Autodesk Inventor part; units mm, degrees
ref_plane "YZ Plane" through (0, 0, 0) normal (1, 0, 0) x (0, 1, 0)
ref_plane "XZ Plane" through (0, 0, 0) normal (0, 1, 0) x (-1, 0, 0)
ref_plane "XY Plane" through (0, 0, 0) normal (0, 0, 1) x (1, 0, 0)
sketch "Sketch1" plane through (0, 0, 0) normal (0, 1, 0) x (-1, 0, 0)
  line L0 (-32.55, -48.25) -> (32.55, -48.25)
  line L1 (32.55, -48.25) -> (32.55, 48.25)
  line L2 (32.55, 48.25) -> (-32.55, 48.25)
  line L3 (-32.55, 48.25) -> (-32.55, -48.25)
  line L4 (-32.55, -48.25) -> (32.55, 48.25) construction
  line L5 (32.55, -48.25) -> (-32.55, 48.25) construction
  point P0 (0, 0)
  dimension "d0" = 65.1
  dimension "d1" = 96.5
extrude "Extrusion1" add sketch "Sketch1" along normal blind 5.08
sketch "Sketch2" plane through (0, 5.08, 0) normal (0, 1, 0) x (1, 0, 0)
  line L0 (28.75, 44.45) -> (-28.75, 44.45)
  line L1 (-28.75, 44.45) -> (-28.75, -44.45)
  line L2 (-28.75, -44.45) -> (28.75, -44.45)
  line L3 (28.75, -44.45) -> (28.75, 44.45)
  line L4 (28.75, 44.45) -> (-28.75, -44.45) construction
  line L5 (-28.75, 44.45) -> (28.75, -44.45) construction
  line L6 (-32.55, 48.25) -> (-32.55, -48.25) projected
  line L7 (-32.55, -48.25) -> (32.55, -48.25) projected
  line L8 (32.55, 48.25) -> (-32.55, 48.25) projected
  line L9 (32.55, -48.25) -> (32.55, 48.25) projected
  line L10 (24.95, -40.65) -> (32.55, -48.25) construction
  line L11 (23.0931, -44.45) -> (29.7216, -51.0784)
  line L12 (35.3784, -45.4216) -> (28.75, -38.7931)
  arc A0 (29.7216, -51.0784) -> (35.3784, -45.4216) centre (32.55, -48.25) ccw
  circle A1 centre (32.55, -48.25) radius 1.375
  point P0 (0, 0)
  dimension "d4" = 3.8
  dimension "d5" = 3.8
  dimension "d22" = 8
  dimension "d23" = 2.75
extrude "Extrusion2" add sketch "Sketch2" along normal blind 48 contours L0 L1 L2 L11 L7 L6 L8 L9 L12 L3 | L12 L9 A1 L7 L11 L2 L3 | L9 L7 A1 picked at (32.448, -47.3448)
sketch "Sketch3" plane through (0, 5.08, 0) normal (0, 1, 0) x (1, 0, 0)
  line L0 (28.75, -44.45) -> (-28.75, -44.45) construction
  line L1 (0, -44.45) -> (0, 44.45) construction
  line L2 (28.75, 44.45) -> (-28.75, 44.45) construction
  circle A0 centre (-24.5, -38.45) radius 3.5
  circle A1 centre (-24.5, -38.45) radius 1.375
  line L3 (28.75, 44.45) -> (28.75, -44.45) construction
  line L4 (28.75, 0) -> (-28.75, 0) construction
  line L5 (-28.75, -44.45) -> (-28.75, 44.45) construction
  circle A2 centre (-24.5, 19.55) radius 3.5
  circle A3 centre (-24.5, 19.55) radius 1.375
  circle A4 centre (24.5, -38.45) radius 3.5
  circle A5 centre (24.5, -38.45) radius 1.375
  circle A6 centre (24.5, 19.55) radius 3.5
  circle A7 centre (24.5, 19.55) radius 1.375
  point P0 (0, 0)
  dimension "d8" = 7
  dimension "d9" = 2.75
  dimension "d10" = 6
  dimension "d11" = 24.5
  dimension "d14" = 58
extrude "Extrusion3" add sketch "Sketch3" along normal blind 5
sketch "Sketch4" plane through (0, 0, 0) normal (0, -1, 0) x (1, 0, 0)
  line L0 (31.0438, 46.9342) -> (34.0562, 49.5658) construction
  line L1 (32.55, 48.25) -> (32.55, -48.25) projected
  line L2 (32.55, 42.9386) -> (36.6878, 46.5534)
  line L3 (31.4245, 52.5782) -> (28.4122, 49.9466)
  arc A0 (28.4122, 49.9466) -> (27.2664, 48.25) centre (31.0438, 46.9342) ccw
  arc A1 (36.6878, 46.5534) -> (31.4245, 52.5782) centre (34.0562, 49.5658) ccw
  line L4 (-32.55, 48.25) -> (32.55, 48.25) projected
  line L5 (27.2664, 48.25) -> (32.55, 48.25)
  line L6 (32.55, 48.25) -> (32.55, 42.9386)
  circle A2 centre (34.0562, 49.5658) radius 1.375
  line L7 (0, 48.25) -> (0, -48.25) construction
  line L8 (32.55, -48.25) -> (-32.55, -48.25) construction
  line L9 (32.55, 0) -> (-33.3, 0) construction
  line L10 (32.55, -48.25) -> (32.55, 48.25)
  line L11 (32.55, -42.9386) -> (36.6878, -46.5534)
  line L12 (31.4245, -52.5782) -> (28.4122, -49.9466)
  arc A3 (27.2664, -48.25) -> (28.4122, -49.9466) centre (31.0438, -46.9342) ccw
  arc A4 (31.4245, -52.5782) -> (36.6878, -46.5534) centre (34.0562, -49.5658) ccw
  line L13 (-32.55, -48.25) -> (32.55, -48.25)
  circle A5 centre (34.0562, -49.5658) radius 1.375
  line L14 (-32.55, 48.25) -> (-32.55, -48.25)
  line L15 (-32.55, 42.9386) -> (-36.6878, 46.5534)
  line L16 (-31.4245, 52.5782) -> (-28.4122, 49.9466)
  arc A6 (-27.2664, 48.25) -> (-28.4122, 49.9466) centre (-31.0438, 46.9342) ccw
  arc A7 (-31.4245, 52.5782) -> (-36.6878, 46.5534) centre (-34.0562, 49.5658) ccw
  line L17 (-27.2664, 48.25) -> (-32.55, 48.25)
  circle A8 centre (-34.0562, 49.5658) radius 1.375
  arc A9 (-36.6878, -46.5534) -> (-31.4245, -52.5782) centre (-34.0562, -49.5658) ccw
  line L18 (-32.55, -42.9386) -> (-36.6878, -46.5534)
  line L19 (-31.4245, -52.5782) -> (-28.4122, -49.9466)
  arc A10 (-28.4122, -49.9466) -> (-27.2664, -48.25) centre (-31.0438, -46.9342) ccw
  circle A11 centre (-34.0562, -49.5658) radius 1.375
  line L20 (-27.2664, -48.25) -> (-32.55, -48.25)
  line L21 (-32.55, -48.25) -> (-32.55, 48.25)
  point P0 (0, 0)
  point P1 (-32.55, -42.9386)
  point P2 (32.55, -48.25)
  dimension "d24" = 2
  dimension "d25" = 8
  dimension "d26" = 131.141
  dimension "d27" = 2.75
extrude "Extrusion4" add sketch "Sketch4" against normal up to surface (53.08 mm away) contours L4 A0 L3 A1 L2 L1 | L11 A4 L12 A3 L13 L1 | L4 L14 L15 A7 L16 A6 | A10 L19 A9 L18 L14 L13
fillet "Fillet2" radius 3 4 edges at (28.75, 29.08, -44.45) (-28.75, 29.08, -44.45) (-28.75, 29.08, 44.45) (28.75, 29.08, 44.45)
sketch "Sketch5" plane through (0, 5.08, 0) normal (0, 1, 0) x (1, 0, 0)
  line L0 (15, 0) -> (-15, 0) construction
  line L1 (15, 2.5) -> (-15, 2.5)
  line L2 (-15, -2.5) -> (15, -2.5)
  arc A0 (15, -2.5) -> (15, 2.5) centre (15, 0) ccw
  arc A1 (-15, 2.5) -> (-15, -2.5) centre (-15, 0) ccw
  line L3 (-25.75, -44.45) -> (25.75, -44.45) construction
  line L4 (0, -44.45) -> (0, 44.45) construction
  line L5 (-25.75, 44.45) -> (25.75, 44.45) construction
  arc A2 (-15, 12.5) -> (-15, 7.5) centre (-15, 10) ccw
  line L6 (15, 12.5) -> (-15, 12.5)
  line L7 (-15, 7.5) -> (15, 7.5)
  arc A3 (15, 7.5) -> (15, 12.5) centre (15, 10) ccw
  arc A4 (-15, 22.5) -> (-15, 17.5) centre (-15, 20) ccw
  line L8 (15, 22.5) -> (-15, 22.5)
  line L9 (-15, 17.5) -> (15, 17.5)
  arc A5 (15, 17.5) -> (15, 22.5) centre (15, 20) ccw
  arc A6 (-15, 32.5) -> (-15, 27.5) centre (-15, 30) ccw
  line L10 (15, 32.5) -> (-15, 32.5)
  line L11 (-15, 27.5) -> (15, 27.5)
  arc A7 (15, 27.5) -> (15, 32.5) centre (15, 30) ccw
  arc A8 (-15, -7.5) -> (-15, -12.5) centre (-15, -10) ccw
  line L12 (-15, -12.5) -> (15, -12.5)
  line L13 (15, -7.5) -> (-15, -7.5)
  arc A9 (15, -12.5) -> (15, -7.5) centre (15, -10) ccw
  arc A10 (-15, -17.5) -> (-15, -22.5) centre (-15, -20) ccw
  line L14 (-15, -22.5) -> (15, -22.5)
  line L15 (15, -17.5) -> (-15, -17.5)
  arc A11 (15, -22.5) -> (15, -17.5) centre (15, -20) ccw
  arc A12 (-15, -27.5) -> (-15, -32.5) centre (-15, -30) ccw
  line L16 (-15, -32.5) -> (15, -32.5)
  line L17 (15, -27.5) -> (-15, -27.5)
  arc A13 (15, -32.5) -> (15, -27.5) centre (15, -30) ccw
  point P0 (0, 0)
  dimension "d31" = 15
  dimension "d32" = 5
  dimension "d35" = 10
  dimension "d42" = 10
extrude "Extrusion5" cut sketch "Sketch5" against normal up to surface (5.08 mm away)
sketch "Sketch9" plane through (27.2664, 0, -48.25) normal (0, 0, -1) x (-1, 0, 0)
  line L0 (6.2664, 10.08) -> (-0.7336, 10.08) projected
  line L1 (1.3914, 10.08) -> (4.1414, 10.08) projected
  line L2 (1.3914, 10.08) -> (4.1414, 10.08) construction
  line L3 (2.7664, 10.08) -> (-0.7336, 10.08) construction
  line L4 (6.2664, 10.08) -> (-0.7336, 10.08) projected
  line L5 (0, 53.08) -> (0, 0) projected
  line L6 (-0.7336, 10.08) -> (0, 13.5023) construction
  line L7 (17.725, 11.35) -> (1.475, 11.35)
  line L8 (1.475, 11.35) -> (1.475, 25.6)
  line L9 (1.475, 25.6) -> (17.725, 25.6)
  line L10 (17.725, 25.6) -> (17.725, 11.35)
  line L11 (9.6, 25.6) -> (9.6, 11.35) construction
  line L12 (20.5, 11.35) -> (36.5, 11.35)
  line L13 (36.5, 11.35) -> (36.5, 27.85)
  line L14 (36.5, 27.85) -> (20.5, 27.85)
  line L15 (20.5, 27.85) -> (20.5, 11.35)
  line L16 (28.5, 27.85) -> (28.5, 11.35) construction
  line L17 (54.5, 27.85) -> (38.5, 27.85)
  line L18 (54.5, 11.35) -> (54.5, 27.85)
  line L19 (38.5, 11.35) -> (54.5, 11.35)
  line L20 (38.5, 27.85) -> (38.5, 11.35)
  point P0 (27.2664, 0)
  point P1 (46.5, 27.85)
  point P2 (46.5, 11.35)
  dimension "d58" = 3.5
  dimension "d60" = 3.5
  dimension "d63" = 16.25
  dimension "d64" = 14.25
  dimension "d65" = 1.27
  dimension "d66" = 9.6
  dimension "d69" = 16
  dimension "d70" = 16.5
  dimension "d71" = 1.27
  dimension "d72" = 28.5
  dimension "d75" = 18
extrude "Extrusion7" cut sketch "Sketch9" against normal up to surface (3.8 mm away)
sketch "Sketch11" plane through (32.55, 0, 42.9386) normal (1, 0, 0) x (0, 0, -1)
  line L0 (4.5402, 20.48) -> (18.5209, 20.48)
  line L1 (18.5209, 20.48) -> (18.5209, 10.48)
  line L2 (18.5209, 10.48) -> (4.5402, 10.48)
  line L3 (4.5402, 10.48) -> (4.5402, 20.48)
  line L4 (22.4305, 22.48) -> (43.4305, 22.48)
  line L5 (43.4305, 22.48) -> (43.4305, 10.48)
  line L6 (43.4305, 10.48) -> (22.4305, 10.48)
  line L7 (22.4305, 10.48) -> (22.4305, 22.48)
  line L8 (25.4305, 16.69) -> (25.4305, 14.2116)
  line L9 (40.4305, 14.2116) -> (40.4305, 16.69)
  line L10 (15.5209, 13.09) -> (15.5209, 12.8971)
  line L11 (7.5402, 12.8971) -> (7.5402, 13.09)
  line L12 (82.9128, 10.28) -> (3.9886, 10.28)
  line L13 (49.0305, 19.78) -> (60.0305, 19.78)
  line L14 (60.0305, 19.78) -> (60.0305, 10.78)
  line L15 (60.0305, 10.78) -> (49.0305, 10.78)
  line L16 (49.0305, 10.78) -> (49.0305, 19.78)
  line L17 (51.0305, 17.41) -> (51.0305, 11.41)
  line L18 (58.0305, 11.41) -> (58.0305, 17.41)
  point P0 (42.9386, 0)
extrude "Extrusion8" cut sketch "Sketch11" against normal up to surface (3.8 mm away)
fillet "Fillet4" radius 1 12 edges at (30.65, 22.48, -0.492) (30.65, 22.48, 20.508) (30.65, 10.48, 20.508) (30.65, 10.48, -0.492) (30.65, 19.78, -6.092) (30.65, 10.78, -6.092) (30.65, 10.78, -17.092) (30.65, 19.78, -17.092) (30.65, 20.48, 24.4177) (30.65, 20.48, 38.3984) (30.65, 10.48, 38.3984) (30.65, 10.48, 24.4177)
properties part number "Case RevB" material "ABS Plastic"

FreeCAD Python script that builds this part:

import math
import FreeCAD as App
import Part
import Sketcher
Q = App.Units.Quantity


def edges_at(feature, points):
    """Names of the edges that pass closest to the given points."""
    edges = feature.Shape.Edges
    near = lambda p: min(range(len(edges)), key=lambda i: edges[i].distToShape(Part.Vertex(*p))[0])
    return sorted({f"Edge{near(p) + 1}" for p in points})


def add_polygon(sketch, points):
    """Adds a closed chain of lines whose ends are joined by coincident constraints."""
    first, n = sketch.GeometryCount, len(points)
    for a, b in zip(points, points[1:] + points[:1]):
        sketch.addGeometry(Part.LineSegment(App.Vector(*a, 0), App.Vector(*b, 0)), False)
    for i in range(n):
        sketch.addConstraint(Sketcher.Constraint("Coincident", first + i, 2, first + (i + 1) % n, 1))

doc = App.newDocument("Part")
body = doc.addObject("PartDesign::Body", "Body")

sketch1 = doc.addObject("Sketcher::SketchObject", "Sketch")
body.addObject(sketch1)
sketch1.AttachmentSupport = (doc.XZ_Plane, [""])
sketch1.MapMode = "FlatFace"
add_polygon(sketch1, [(32.55, 48.25), (32.55, -48.25), (-32.55, -48.25), (-32.55, 48.25)])
sketch1.addConstraint([
    Sketcher.Constraint("Vertical", 0),
    Sketcher.Constraint("Horizontal", 1),
    Sketcher.Constraint("Vertical", 2),
    Sketcher.Constraint("Horizontal", 3),
    Sketcher.Constraint("Symmetric", 0, 2, 2, 2, -1, 1),
    Sketcher.Constraint("DistanceX", 1, 2, 1, 1, 65.1),
    Sketcher.Constraint("DistanceY", 0, 2, 0, 1, 96.5),
])
pad1 = doc.addObject("PartDesign::Pad", "Pad")
body.addObject(pad1)
pad1.Profile = sketch1
pad1.Length = 5.08
pad1.Reversed = True

sketch2 = doc.addObject("Sketcher::SketchObject", "Sketch001")
body.addObject(sketch2)
sketch2.AttachmentSupport = (doc.XZ_Plane, [""])
sketch2.MapMode = "FlatFace"
sketch2.AttachmentOffset = App.Placement(App.Vector(0, 0, -5.08), App.Rotation())
add_polygon(sketch2, [(-32.55, 48.25), (32.55, 48.25), (32.55, -48.25), (-32.55, -48.25)])
add_polygon(sketch2, [(-28.75, -44.45), (28.75, -44.45), (28.75, 44.45), (-28.75, 44.45)])
sketch2.addConstraint([
    Sketcher.Constraint("Horizontal", 0),
    Sketcher.Constraint("Vertical", 1),
    Sketcher.Constraint("Horizontal", 2),
    Sketcher.Constraint("Vertical", 3),
    Sketcher.Constraint("Horizontal", 4),
    Sketcher.Constraint("Vertical", 5),
    Sketcher.Constraint("Horizontal", 6),
    Sketcher.Constraint("Vertical", 7),
    Sketcher.Constraint("Symmetric", 0, 2, 2, 2, -1, 1),
    Sketcher.Constraint("Symmetric", 4, 2, 6, 2, -1, 1),
    Sketcher.Constraint("DistanceX", 4, 2, 1, 2, 3.8),
    Sketcher.Constraint("DistanceY", 1, 2, 4, 2, 3.8),
    Sketcher.Constraint("DistanceX", 0, 1, 0, 2, 65.1),
    Sketcher.Constraint("DistanceY", 1, 2, 1, 1, 96.5),
])
pad2 = doc.addObject("PartDesign::Pad", "Pad001")
body.addObject(pad2)
pad2.Profile = sketch2
pad2.Length = 48
pad2.Reversed = True

sketch3 = doc.addObject("Sketcher::SketchObject", "Sketch002")
body.addObject(sketch3)
sketch3.AttachmentSupport = (doc.XZ_Plane, [""])
sketch3.MapMode = "FlatFace"
sketch3.AttachmentOffset = App.Placement(App.Vector(0, 0, -5.08), App.Rotation())
sketch3.addGeometry([
    Part.Circle(App.Vector(-24.5, 38.45, 0), App.Vector(0, 0, 1), 3.5),
    Part.Circle(App.Vector(-24.5, 38.45, 0), App.Vector(0, 0, 1), 1.375),
    Part.Circle(App.Vector(-24.5, -19.55, 0), App.Vector(0, 0, 1), 3.5),
    Part.Circle(App.Vector(-24.5, -19.55, 0), App.Vector(0, 0, 1), 1.375),
    Part.Circle(App.Vector(24.5, 38.45, 0), App.Vector(0, 0, 1), 3.5),
    Part.Circle(App.Vector(24.5, 38.45, 0), App.Vector(0, 0, 1), 1.375),
    Part.Circle(App.Vector(24.5, -19.55, 0), App.Vector(0, 0, 1), 3.5),
    Part.Circle(App.Vector(24.5, -19.55, 0), App.Vector(0, 0, 1), 1.375),
], False)
sketch3.addConstraint([
    Sketcher.Constraint("Coincident", 1, 3, 0, 3),
    Sketcher.Constraint("Coincident", 3, 3, 2, 3),
    Sketcher.Constraint("Coincident", 5, 3, 4, 3),
    Sketcher.Constraint("Coincident", 7, 3, 6, 3),
    Sketcher.Constraint("Equal", 0, 2),
    Sketcher.Constraint("Equal", 1, 3),
    Sketcher.Constraint("Equal", 2, 4),
    Sketcher.Constraint("Equal", 3, 5),
    Sketcher.Constraint("Equal", 4, 6),
    Sketcher.Constraint("Equal", 5, 7),
    Sketcher.Constraint("Symmetric", 0, 3, 4, 3, -2),
    Sketcher.Constraint("Symmetric", 2, 3, 6, 3, -2),
    Sketcher.Constraint("Vertical", 1, 3, 2, 3),
    Sketcher.Constraint("Diameter", 0, 7.0),
    Sketcher.Constraint("Diameter", 1, 2.75),
    Sketcher.Constraint("DistanceY", 2, 3, 0, 3, 58.0),
    Sketcher.Constraint("DistanceX", 0, 3, -1, 1, 24.5),
    Sketcher.Constraint("DistanceY", -1, 1, 0, 3, 38.45),
])
pad3 = doc.addObject("PartDesign::Pad", "Pad002")
body.addObject(pad3)
pad3.Profile = sketch3
pad3.Length = 5
pad3.Reversed = True

sketch4 = doc.addObject("Sketcher::SketchObject", "Sketch003")
body.addObject(sketch4)
sketch4.AttachmentSupport = (doc.XZ_Plane, [""])
sketch4.MapMode = "FlatFace"
sketch4.addGeometry([
    Part.LineSegment(App.Vector(27.2664, 48.25, 0), App.Vector(32.55, 48.25, 0)),
    Part.LineSegment(App.Vector(32.55, 48.25, 0), App.Vector(32.55, 42.9386, 0)),
    Part.LineSegment(App.Vector(32.55, 42.9386, 0), App.Vector(36.6878, 46.5534, 0)),
    Part.ArcOfCircle(Part.Circle(App.Vector(34.0562, 49.5658, 0), App.Vector(0, 0, 1), 3.999984), math.radians(-48.859889), math.radians(131.141189)),
    Part.LineSegment(App.Vector(31.4245, 52.5782, 0), App.Vector(28.4122, 49.9466, 0)),
    Part.ArcOfCircle(Part.Circle(App.Vector(31.0438, 46.9342, 0), App.Vector(0, 0, 1), 3.999984), math.radians(131.140111), math.radians(160.794993)),
    Part.Circle(App.Vector(34.0562, 49.5658, 0), App.Vector(0, 0, 1), 1.375),
    Part.LineSegment(App.Vector(36.6878, -46.5534, 0), App.Vector(32.55, -42.9386, 0)),
    Part.LineSegment(App.Vector(32.55, -42.9386, 0), App.Vector(32.55, -48.25, 0)),
    Part.LineSegment(App.Vector(32.55, -48.25, 0), App.Vector(27.2664, -48.25, 0)),
    Part.ArcOfCircle(Part.Circle(App.Vector(31.0438, -46.9342, 0), App.Vector(0, 0, 1), 4.00001), math.radians(-160.794993), math.radians(-131.140111)),
    Part.LineSegment(App.Vector(28.4122, -49.9466, 0), App.Vector(31.4245, -52.5782, 0)),
    Part.ArcOfCircle(Part.Circle(App.Vector(34.0562, -49.5658, 0), App.Vector(0, 0, 1), 4.00005), math.radians(-131.141189), math.radians(48.859889)),
    Part.Circle(App.Vector(34.0562, -49.5658, 0), App.Vector(0, 0, 1), 1.375),
    Part.LineSegment(App.Vector(-32.55, 48.25, 0), App.Vector(-27.2664, 48.25, 0)),
    Part.ArcOfCircle(Part.Circle(App.Vector(-31.0438, 46.9342, 0), App.Vector(0, 0, 1), 4.00001), math.radians(19.205007), math.radians(48.859889)),
    Part.LineSegment(App.Vector(-28.4122, 49.9466, 0), App.Vector(-31.4245, 52.5782, 0)),
    Part.ArcOfCircle(Part.Circle(App.Vector(-34.0562, 49.5658, 0), App.Vector(0, 0, 1), 4.00005), math.radians(48.858811), math.radians(228.859889)),
    Part.LineSegment(App.Vector(-36.6878, 46.5534, 0), App.Vector(-32.55, 42.9386, 0)),
    Part.LineSegment(App.Vector(-32.55, 42.9386, 0), App.Vector(-32.55, 48.25, 0)),
    Part.Circle(App.Vector(-34.0562, 49.5658, 0), App.Vector(0, 0, 1), 1.375),
    Part.ArcOfCircle(Part.Circle(App.Vector(-31.0438, -46.9342, 0), App.Vector(0, 0, 1), 3.999984), math.radians(-48.859889), math.radians(-19.205007)),
    Part.LineSegment(App.Vector(-27.2664, -48.25, 0), App.Vector(-32.55, -48.25, 0)),
    Part.LineSegment(App.Vector(-32.55, -48.25, 0), App.Vector(-32.55, -42.9386, 0)),
    Part.LineSegment(App.Vector(-32.55, -42.9386, 0), App.Vector(-36.6878, -46.5534, 0)),
    Part.ArcOfCircle(Part.Circle(App.Vector(-34.0562, -49.5658, 0), App.Vector(0, 0, 1), 3.999984), math.radians(131.140111), math.radians(311.141189)),
    Part.LineSegment(App.Vector(-31.4245, -52.5782, 0), App.Vector(-28.4122, -49.9466, 0)),
    Part.Circle(App.Vector(-34.0562, -49.5658, 0), App.Vector(0, 0, 1), 1.375),
], False)
sketch4.addConstraint([
    Sketcher.Constraint("Coincident", 0, 2, 1, 1),
    Sketcher.Constraint("Coincident", 1, 2, 2, 1),
    Sketcher.Constraint("Tangent", 2, 2, 3, 1),
    Sketcher.Constraint("Tangent", 3, 2, 4, 1),
    Sketcher.Constraint("Tangent", 4, 2, 5, 1),
    Sketcher.Constraint("Coincident", 5, 2, 0, 1),
    Sketcher.Constraint("Coincident", 7, 2, 8, 1),
    Sketcher.Constraint("Coincident", 8, 2, 9, 1),
    Sketcher.Constraint("Coincident", 9, 2, 10, 1),
    Sketcher.Constraint("Tangent", 10, 2, 11, 1),
    Sketcher.Constraint("Tangent", 11, 2, 12, 1),
    Sketcher.Constraint("Tangent", 12, 2, 7, 1),
    Sketcher.Constraint("Coincident", 14, 2, 15, 1),
    Sketcher.Constraint("Tangent", 15, 2, 16, 1),
    Sketcher.Constraint("Tangent", 16, 2, 17, 1),
    Sketcher.Constraint("Tangent", 17, 2, 18, 1),
    Sketcher.Constraint("Coincident", 18, 2, 19, 1),
    Sketcher.Constraint("Coincident", 19, 2, 14, 1),
    Sketcher.Constraint("Coincident", 21, 2, 22, 1),
    Sketcher.Constraint("Coincident", 22, 2, 23, 1),
    Sketcher.Constraint("Coincident", 23, 2, 24, 1),
    Sketcher.Constraint("Tangent", 24, 2, 25, 1),
    Sketcher.Constraint("Tangent", 25, 2, 26, 1),
    Sketcher.Constraint("Tangent", 26, 2, 21, 1),
    Sketcher.Constraint("Horizontal", 0),
    Sketcher.Constraint("Vertical", 1),
    Sketcher.Constraint("Vertical", 8),
    Sketcher.Constraint("Horizontal", 9),
    Sketcher.Constraint("Horizontal", 14),
    Sketcher.Constraint("Vertical", 19),
    Sketcher.Constraint("Horizontal", 22),
    Sketcher.Constraint("Vertical", 23),
    Sketcher.Constraint("Coincident", 6, 3, 3, 3),
    Sketcher.Constraint("Coincident", 13, 3, 12, 3),
    Sketcher.Constraint("Coincident", 20, 3, 17, 3),
    Sketcher.Constraint("Coincident", 27, 3, 25, 3),
    Sketcher.Constraint("Equal", 3, 5),
    Sketcher.Constraint("Equal", 5, 10),
    Sketcher.Constraint("Equal", 10, 12),
    Sketcher.Constraint("Equal", 6, 13),
    Sketcher.Constraint("Equal", 12, 15),
    Sketcher.Constraint("Equal", 15, 17),
    Sketcher.Constraint("Equal", 13, 20),
    Sketcher.Constraint("Equal", 17, 21),
    Sketcher.Constraint("Equal", 21, 25),
    Sketcher.Constraint("Equal", 20, 27),
    Sketcher.Constraint("Symmetric", 10, 3, 15, 3, -1, 1),
    Sketcher.Constraint("Symmetric", 12, 3, 17, 3, -1, 1),
    Sketcher.Constraint("Symmetric", 5, 3, 21, 3, -1, 1),
    Sketcher.Constraint("Symmetric", 3, 3, 25, 3, -1, 1),
    Sketcher.Constraint("Symmetric", 7, 2, 18, 2, -1, 1),
    Sketcher.Constraint("Symmetric", 0, 2, 22, 2, -1, 1),
    Sketcher.Constraint("Symmetric", 5, 3, 15, 3, -2),
    Sketcher.Constraint("Symmetric", 3, 3, 17, 3, -2),
    Sketcher.Constraint("Symmetric", 1, 2, 18, 2, -2),
    Sketcher.Constraint("Parallel", 2, 4),
    Sketcher.Constraint("Parallel", 4, 24),
    Sketcher.Constraint("Horizontal", 5, 2, 14, 2),
    Sketcher.Constraint("Horizontal", 9, 2, 21, 2),
    Sketcher.Constraint("Radius", 3, 4.0),
    Sketcher.Constraint("Diameter", 6, 2.75),
    Sketcher.Constraint("Distance", 4, 4.0),
    Sketcher.Constraint("Angle", 2, Q("41.1406 deg")),
    Sketcher.Constraint("DistanceY", 10, 3, 3, 3, 96.5),
    Sketcher.Constraint("DistanceX", 15, 3, 3, 3, 65.1),
    Sketcher.Constraint("DistanceX", -1, 1, 0, 2, 32.55),
    Sketcher.Constraint("DistanceY", -1, 1, 0, 2, 48.25),
])
pad4 = doc.addObject("PartDesign::Pad", "Pad003")
body.addObject(pad4)
pad4.Profile = sketch4
pad4.Length = 53.08
pad4.Reversed = True
doc.recompute()

fillet = doc.addObject("PartDesign::Fillet", "Fillet")
body.addObject(fillet)
fillet.Base = (pad4, edges_at(pad4, [
    (28.75, 29.08, -44.45),
    (-28.75, 29.08, -44.45),
    (-28.75, 29.08, 44.45),
    (28.75, 29.08, 44.45),
]))
fillet.Radius = 3

sketch5 = doc.addObject("Sketcher::SketchObject", "Sketch004")
body.addObject(sketch5)
sketch5.AttachmentSupport = (doc.XZ_Plane, [""])
sketch5.MapMode = "FlatFace"
sketch5.AttachmentOffset = App.Placement(App.Vector(0, 0, -5.08), App.Rotation())
sketch5.addGeometry([
    Part.ArcOfCircle(Part.Circle(App.Vector(15, 0, 0), App.Vector(0, 0, 1), 2.5), math.radians(-90), math.radians(90)),
    Part.LineSegment(App.Vector(15, -2.5, 0), App.Vector(-15, -2.5, 0)),
    Part.ArcOfCircle(Part.Circle(App.Vector(-15, 0, 0), App.Vector(0, 0, 1), 2.5), math.radians(90), math.radians(270)),
    Part.LineSegment(App.Vector(-15, 2.5, 0), App.Vector(15, 2.5, 0)),
    Part.LineSegment(App.Vector(15, -12.5, 0), App.Vector(-15, -12.5, 0)),
    Part.ArcOfCircle(Part.Circle(App.Vector(-15, -10, 0), App.Vector(0, 0, 1), 2.5), math.radians(90), math.radians(270)),
    Part.LineSegment(App.Vector(-15, -7.5, 0), App.Vector(15, -7.5, 0)),
    Part.ArcOfCircle(Part.Circle(App.Vector(15, -10, 0), App.Vector(0, 0, 1), 2.5), math.radians(-90), math.radians(90)),
    Part.LineSegment(App.Vector(15, -22.5, 0), App.Vector(-15, -22.5, 0)),
    Part.ArcOfCircle(Part.Circle(App.Vector(-15, -20, 0), App.Vector(0, 0, 1), 2.5), math.radians(90), math.radians(270)),
    Part.LineSegment(App.Vector(-15, -17.5, 0), App.Vector(15, -17.5, 0)),
    Part.ArcOfCircle(Part.Circle(App.Vector(15, -20, 0), App.Vector(0, 0, 1), 2.5), math.radians(-90), math.radians(90)),
    Part.LineSegment(App.Vector(15, -32.5, 0), App.Vector(-15, -32.5, 0)),
    Part.ArcOfCircle(Part.Circle(App.Vector(-15, -30, 0), App.Vector(0, 0, 1), 2.5), math.radians(90), math.radians(270)),
    Part.LineSegment(App.Vector(-15, -27.5, 0), App.Vector(15, -27.5, 0)),
    Part.ArcOfCircle(Part.Circle(App.Vector(15, -30, 0), App.Vector(0, 0, 1), 2.5), math.radians(-90), math.radians(90)),
    Part.LineSegment(App.Vector(15, 7.5, 0), App.Vector(-15, 7.5, 0)),
    Part.ArcOfCircle(Part.Circle(App.Vector(-15, 10, 0), App.Vector(0, 0, 1), 2.5), math.radians(90), math.radians(270)),
    Part.LineSegment(App.Vector(-15, 12.5, 0), App.Vector(15, 12.5, 0)),
    Part.ArcOfCircle(Part.Circle(App.Vector(15, 10, 0), App.Vector(0, 0, 1), 2.5), math.radians(-90), math.radians(90)),
    Part.LineSegment(App.Vector(15, 17.5, 0), App.Vector(-15, 17.5, 0)),
    Part.ArcOfCircle(Part.Circle(App.Vector(-15, 20, 0), App.Vector(0, 0, 1), 2.5), math.radians(90), math.radians(270)),
    Part.LineSegment(App.Vector(-15, 22.5, 0), App.Vector(15, 22.5, 0)),
    Part.ArcOfCircle(Part.Circle(App.Vector(15, 20, 0), App.Vector(0, 0, 1), 2.5), math.radians(-90), math.radians(90)),
    Part.LineSegment(App.Vector(15, 27.5, 0), App.Vector(-15, 27.5, 0)),
    Part.ArcOfCircle(Part.Circle(App.Vector(-15, 30, 0), App.Vector(0, 0, 1), 2.5), math.radians(90), math.radians(270)),
    Part.LineSegment(App.Vector(-15, 32.5, 0), App.Vector(15, 32.5, 0)),
    Part.ArcOfCircle(Part.Circle(App.Vector(15, 30, 0), App.Vector(0, 0, 1), 2.5), math.radians(-90), math.radians(90)),
], False)
sketch5.addConstraint([
    Sketcher.Constraint("Tangent", 0, 1, 1, 1),
    Sketcher.Constraint("Tangent", 1, 2, 2, 2),
    Sketcher.Constraint("Tangent", 2, 1, 3, 1),
    Sketcher.Constraint("Tangent", 3, 2, 0, 2),
    Sketcher.Constraint("Tangent", 4, 2, 5, 2),
    Sketcher.Constraint("Tangent", 5, 1, 6, 1),
    Sketcher.Constraint("Tangent", 6, 2, 7, 2),
    Sketcher.Constraint("Tangent", 7, 1, 4, 1),
    Sketcher.Constraint("Tangent", 8, 2, 9, 2),
    Sketcher.Constraint("Tangent", 9, 1, 10, 1),
    Sketcher.Constraint("Tangent", 10, 2, 11, 2),
    Sketcher.Constraint("Tangent", 11, 1, 8, 1),
    Sketcher.Constraint("Tangent", 12, 2, 13, 2),
    Sketcher.Constraint("Tangent", 13, 1, 14, 1),
    Sketcher.Constraint("Tangent", 14, 2, 15, 2),
    Sketcher.Constraint("Tangent", 15, 1, 12, 1),
    Sketcher.Constraint("Tangent", 16, 2, 17, 2),
    Sketcher.Constraint("Tangent", 17, 1, 18, 1),
    Sketcher.Constraint("Tangent", 18, 2, 19, 2),
    Sketcher.Constraint("Tangent", 19, 1, 16, 1),
    Sketcher.Constraint("Tangent", 20, 2, 21, 2),
    Sketcher.Constraint("Tangent", 21, 1, 22, 1),
    Sketcher.Constraint("Tangent", 22, 2, 23, 2),
    Sketcher.Constraint("Tangent", 23, 1, 20, 1),
    Sketcher.Constraint("Tangent", 24, 2, 25, 2),
    Sketcher.Constraint("Tangent", 25, 1, 26, 1),
    Sketcher.Constraint("Tangent", 26, 2, 27, 2),
    Sketcher.Constraint("Tangent", 27, 1, 24, 1),
    Sketcher.Constraint("Horizontal", 1),
    Sketcher.Constraint("Horizontal", 3),
    Sketcher.Constraint("Horizontal", 4),
    Sketcher.Constraint("Horizontal", 6),
    Sketcher.Constraint("Horizontal", 8),
    Sketcher.Constraint("Horizontal", 10),
    Sketcher.Constraint("Horizontal", 12),
    Sketcher.Constraint("Horizontal", 14),
    Sketcher.Constraint("Horizontal", 16),
    Sketcher.Constraint("Horizontal", 18),
    Sketcher.Constraint("Horizontal", 20),
    Sketcher.Constraint("Horizontal", 22),
    Sketcher.Constraint("Horizontal", 24),
    Sketcher.Constraint("Horizontal", 26),
    Sketcher.Constraint("Equal", 2, 5),
    Sketcher.Constraint("Equal", 7, 9),
    Sketcher.Constraint("Equal", 11, 13),
    Sketcher.Constraint("Equal", 15, 17),
    Sketcher.Constraint("Equal", 19, 21),
    Sketcher.Constraint("Equal", 23, 25),
    Sketcher.Constraint("Symmetric", 0, 3, 2, 3, -1, 1),
    Sketcher.Constraint("Symmetric", 7, 3, 17, 3, -1, 1),
    Sketcher.Constraint("Symmetric", 11, 3, 21, 3, -1, 1),
    Sketcher.Constraint("Symmetric", 15, 3, 25, 3, -1, 1),
    Sketcher.Constraint("Vertical", 2, 3, 5, 3),
    Sketcher.Constraint("Vertical", 0, 3, 7, 3),
    Sketcher.Constraint("Vertical", 5, 3, 9, 3),
    Sketcher.Constraint("Vertical", 7, 3, 11, 3),
    Sketcher.Constraint("Vertical", 9, 3, 13, 3),
    Sketcher.Constraint("Vertical", 11, 3, 15, 3),
    Sketcher.Constraint("Vertical", 15, 3, 19, 3),
    Sketcher.Constraint("Vertical", 19, 3, 23, 3),
    Sketcher.Constraint("Vertical", 23, 3, 27, 3),
    Sketcher.Constraint("Radius", 0, 2.5),
    Sketcher.Constraint("DistanceX", -1, 1, 0, 3, 15.0),
    Sketcher.Constraint("DistanceY", 5, 3, -1, 1, 10.0),
    Sketcher.Constraint("DistanceY", 9, 3, 5, 3, 10.0),
    Sketcher.Constraint("DistanceY", 13, 3, 9, 3, 10.0),
])
pocket1 = doc.addObject("PartDesign::Pocket", "Pocket")
body.addObject(pocket1)
pocket1.Profile = sketch5
pocket1.Length = 5.08
pocket1.Reversed = True

sketch6 = doc.addObject("Sketcher::SketchObject", "Sketch005")
body.addObject(sketch6)
sketch6.AttachmentSupport = (doc.XY_Plane, [""])
sketch6.MapMode = "FlatFace"
sketch6.AttachmentOffset = App.Placement(App.Vector(0, 0, -48.25), App.Rotation())
add_polygon(sketch6, [(25.7914, 11.35), (9.5414, 11.35), (9.5414, 25.6), (25.7914, 25.6)])
add_polygon(sketch6, [(6.7664, 27.85), (6.7664, 11.35), (-9.2336, 11.35), (-9.2336, 27.85)])
add_polygon(sketch6, [(-27.2336, 11.35), (-27.2336, 27.85), (-11.2336, 27.85), (-11.2336, 11.35)])
sketch6.addConstraint([
    Sketcher.Constraint("Horizontal", 0),
    Sketcher.Constraint("Vertical", 1),
    Sketcher.Constraint("Horizontal", 2),
    Sketcher.Constraint("Vertical", 3),
    Sketcher.Constraint("Vertical", 4),
    Sketcher.Constraint("Horizontal", 5),
    Sketcher.Constraint("Vertical", 6),
    Sketcher.Constraint("Horizontal", 7),
    Sketcher.Constraint("Vertical", 8),
    Sketcher.Constraint("Horizontal", 9),
    Sketcher.Constraint("Vertical", 10),
    Sketcher.Constraint("Horizontal", 11),
    Sketcher.Constraint("Horizontal", 3, 2, 4, 2),
    Sketcher.Constraint("Horizontal", 7, 2, 8, 2),
    Sketcher.Constraint("Horizontal", 5, 2, 10, 2),
    Sketcher.Constraint("Equal", 7, 9),
    Sketcher.Constraint("DistanceX", 5, 2, 5, 1, 16.0),
    Sketcher.Constraint("DistanceY", 4, 2, 4, 1, 16.5),
    Sketcher.Constraint("DistanceX", 8, 2, 6, 2, 18.0),
    Sketcher.Constraint("DistanceX", 0, 2, 0, 1, 16.25),
    Sketcher.Constraint("DistanceY", 1, 1, 1, 2, 14.25),
    Sketcher.Constraint("DistanceY", -1, 1, 1, 2, 25.6),
    Sketcher.Constraint("DistanceX", 4, 2, 0, 2, 2.775),
    Sketcher.Constraint("DistanceX", -1, 1, 0, 2, 9.5414),
])
pocket2 = doc.addObject("PartDesign::Pocket", "Pocket001")
body.addObject(pocket2)
pocket2.Profile = sketch6
pocket2.Length = 3.8
pocket2.Reversed = True

sketch7 = doc.addObject("Sketcher::SketchObject", "Sketch006")
body.addObject(sketch7)
sketch7.AttachmentSupport = (doc.YZ_Plane, [""])
sketch7.MapMode = "FlatFace"
sketch7.AttachmentOffset = App.Placement(App.Vector(0, 0, 32.55), App.Rotation())
add_polygon(sketch7, [(20.48, 24.4177), (20.48, 38.3984), (10.48, 38.3984), (10.48, 24.4177)])
add_polygon(sketch7, [(22.48, -0.4919), (22.48, 20.5081), (10.48, 20.5081), (10.48, -0.4919)])
add_polygon(sketch7, [(19.78, -17.0919), (19.78, -6.0919), (10.78, -6.0919), (10.78, -17.0919)])
sketch7.addConstraint([
    Sketcher.Constraint("Vertical", 0),
    Sketcher.Constraint("Horizontal", 1),
    Sketcher.Constraint("Vertical", 2),
    Sketcher.Constraint("Horizontal", 3),
    Sketcher.Constraint("Vertical", 4),
    Sketcher.Constraint("Horizontal", 5),
    Sketcher.Constraint("Vertical", 6),
    Sketcher.Constraint("Horizontal", 7),
    Sketcher.Constraint("Vertical", 8),
    Sketcher.Constraint("Horizontal", 9),
    Sketcher.Constraint("Vertical", 10),
    Sketcher.Constraint("Horizontal", 11),
    Sketcher.Constraint("Vertical", 2, 2, 5, 2),
    Sketcher.Constraint("DistanceX", 1, 2, 1, 1, 10.0),
    Sketcher.Constraint("DistanceX", 5, 2, 5, 1, 12.0),
    Sketcher.Constraint("DistanceX", 9, 2, 9, 1, 9.0),
    Sketcher.Constraint("DistanceY", 4, 1, 4, 2, 21.0),
    Sketcher.Constraint("DistanceY", 8, 1, 8, 2, 11.0),
    Sketcher.Constraint("DistanceX", 8, 2, 7, 2, 2.7),
    Sketcher.Constraint("DistanceY", 8, 2, 7, 2, 5.6),
    Sketcher.Constraint("DistanceX", -1, 1, 0, 2, 20.48),
    Sketcher.Constraint("DistanceY", 0, 1, 0, 2, 13.9807),
    Sketcher.Constraint("DistanceY", -1, 1, 4, 2, 20.508),
    Sketcher.Constraint("DistanceY", -1, 1, 0, 2, 38.3984),
])
pocket3 = doc.addObject("PartDesign::Pocket", "Pocket002")
body.addObject(pocket3)
pocket3.Profile = sketch7
pocket3.Length = 3.8
doc.recompute()

fillet2 = doc.addObject("PartDesign::Fillet", "Fillet001")
body.addObject(fillet2)
fillet2.Base = (pocket3, edges_at(pocket3, [
    (30.65, 22.48, -0.492),
    (30.65, 22.48, 20.508),
    (30.65, 10.48, 20.508),
    (30.65, 10.48, -0.492),
    (30.65, 19.78, -6.092),
    (30.65, 10.78, -6.092),
    (30.65, 10.78, -17.092),
    (30.65, 19.78, -17.092),
    (30.65, 20.48, 24.418),
    (30.65, 20.48, 38.398),
    (30.65, 10.48, 38.398),
    (30.65, 10.48, 24.418),
]))
fillet2.Radius = 1

doc.recompute()
